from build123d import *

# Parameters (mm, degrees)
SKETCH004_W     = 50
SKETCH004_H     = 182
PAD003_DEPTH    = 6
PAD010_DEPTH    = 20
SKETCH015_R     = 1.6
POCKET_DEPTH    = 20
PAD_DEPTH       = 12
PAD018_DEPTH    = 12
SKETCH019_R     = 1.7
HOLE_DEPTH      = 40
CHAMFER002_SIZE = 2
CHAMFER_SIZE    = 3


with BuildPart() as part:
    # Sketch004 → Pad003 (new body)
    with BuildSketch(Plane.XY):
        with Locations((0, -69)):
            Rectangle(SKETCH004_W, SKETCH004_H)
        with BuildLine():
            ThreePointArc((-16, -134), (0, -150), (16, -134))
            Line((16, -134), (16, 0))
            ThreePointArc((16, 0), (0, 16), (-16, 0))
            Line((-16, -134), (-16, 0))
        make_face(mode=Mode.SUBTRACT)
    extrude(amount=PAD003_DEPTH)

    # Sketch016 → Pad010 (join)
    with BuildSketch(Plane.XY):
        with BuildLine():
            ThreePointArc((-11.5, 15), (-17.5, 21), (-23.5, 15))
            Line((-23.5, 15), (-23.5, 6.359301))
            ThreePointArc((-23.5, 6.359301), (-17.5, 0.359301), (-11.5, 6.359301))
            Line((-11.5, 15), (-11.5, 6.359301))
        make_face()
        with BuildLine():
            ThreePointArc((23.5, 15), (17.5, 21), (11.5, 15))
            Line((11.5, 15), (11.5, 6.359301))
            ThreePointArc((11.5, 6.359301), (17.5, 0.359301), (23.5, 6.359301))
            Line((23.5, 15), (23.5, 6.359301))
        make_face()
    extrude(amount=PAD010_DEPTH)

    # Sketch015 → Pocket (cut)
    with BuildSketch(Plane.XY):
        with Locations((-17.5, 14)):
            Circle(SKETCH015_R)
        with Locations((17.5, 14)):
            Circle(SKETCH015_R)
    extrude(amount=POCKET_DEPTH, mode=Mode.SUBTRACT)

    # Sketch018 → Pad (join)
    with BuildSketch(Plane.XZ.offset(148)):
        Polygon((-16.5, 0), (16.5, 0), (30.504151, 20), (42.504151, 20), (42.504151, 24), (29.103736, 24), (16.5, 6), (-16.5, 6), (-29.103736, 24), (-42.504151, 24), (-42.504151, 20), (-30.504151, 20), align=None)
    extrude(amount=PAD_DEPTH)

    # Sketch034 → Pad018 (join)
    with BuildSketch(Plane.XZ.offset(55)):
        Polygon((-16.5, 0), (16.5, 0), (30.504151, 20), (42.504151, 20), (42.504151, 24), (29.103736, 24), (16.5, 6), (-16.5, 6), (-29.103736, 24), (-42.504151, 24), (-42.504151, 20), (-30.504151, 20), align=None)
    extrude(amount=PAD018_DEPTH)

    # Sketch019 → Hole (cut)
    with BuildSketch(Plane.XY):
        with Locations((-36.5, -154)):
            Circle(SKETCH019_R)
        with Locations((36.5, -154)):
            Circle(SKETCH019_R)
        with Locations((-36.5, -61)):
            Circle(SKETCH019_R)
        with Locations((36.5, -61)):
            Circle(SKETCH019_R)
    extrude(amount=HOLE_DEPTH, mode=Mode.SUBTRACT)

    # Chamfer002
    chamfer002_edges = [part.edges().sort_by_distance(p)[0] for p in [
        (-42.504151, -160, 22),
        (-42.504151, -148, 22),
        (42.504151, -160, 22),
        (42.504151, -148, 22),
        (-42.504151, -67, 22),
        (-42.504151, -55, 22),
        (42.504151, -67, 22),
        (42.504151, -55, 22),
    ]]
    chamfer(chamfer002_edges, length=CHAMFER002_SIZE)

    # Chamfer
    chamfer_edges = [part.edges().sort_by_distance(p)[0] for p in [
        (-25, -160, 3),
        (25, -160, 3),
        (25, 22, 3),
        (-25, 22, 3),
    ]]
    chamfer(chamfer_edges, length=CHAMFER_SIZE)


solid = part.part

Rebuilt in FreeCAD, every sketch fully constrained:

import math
import FreeCAD as App
import Part
import Sketcher
Q = App.Units.Quantity


def edges_at(feature, points):
    """Names of the edges that pass closest to the given points."""
    edges = feature.Shape.Edges
    near = lambda p: min(range(len(edges)), key=lambda i: edges[i].distToShape(Part.Vertex(*p))[0])
    return sorted({f"Edge{near(p) + 1}" for p in points})

doc = App.newDocument("Part")
body = doc.addObject("PartDesign::Body", "Body")

sketch1 = body.newObject("Sketcher::SketchObject", "Sketch")
sketch1.AttachmentSupport = (doc.getObject("XY_Plane"), [""])
sketch1.MapMode = "FlatFace"
sketch1.addGeometry([
    Part.LineSegment(App.Vector(-25, 22, 0), App.Vector(-25, -160, 0)),
    Part.LineSegment(App.Vector(-25, -160, 0), App.Vector(25, -160, 0)),
    Part.LineSegment(App.Vector(25, -160, 0), App.Vector(25, 22, 0)),
    Part.LineSegment(App.Vector(25, 22, 0), App.Vector(-25, 22, 0)),
    Part.ArcOfCircle(Part.Circle(App.Vector(0, -134, 0), App.Vector(0, 0, 1), 16), math.radians(180), math.radians(360)),
    Part.LineSegment(App.Vector(-16, -134, 0), App.Vector(-16, 0, 0)),
    Part.ArcOfCircle(Part.Circle(App.Vector(0, 0, 0), App.Vector(0, 0, 1), 16), math.radians(0), math.radians(180)),
    Part.LineSegment(App.Vector(16, 0, 0), App.Vector(16, -134, 0)),
], False)
sketch1.addConstraint([
    Sketcher.Constraint("Coincident", 0, 2, 1, 1),
    Sketcher.Constraint("Coincident", 1, 2, 2, 1),
    Sketcher.Constraint("Coincident", 2, 2, 3, 1),
    Sketcher.Constraint("Coincident", 3, 2, 0, 1),
    Sketcher.Constraint("Tangent", 4, 1, 5, 1),
    Sketcher.Constraint("Tangent", 5, 2, 6, 2),
    Sketcher.Constraint("Tangent", 6, 1, 7, 1),
    Sketcher.Constraint("Tangent", 7, 2, 4, 2),
    Sketcher.Constraint("Vertical", 0),
    Sketcher.Constraint("Horizontal", 1),
    Sketcher.Constraint("Vertical", 2),
    Sketcher.Constraint("Horizontal", 3),
    Sketcher.Constraint("Vertical", 5),
    Sketcher.Constraint("Vertical", 7),
    Sketcher.Constraint("Coincident", 6, 3, -1, 1),
    Sketcher.Constraint("Radius", 4, Q("16 mm")),
    Sketcher.Constraint("DistanceX", 1, 1, 1, 2, Q("50 mm")),
    Sketcher.Constraint("DistanceY", 0, 2, 0, 1, Q("182 mm")),
    Sketcher.Constraint("DistanceY", 5, 1, 5, 2, Q("134 mm")),
    Sketcher.Constraint("DistanceX", 0, 2, -1, 1, Q("25 mm")),
    Sketcher.Constraint("DistanceY", 0, 2, -1, 1, Q("160 mm")),
])
pad1 = body.newObject("PartDesign::Pad", "Pad")
pad1.Profile = sketch1
pad1.Length = 6

sketch2 = body.newObject("Sketcher::SketchObject", "Sketch001")
sketch2.AttachmentSupport = (doc.getObject("XY_Plane"), [""])
sketch2.MapMode = "FlatFace"
sketch2.addGeometry([
    Part.ArcOfCircle(Part.Circle(App.Vector(-17.5, 15, 0), App.Vector(0, 0, 1), 6), math.radians(0), math.radians(180)),
    Part.LineSegment(App.Vector(-23.5, 15, 0), App.Vector(-23.5, 6.359301, 0)),
    Part.ArcOfCircle(Part.Circle(App.Vector(-17.5, 6.359301, 0), App.Vector(0, 0, 1), 6), math.radians(180), math.radians(360)),
    Part.LineSegment(App.Vector(-11.5, 6.359301, 0), App.Vector(-11.5, 15, 0)),
    Part.ArcOfCircle(Part.Circle(App.Vector(17.5, 15, 0), App.Vector(0, 0, 1), 6), math.radians(0), math.radians(180)),
    Part.LineSegment(App.Vector(11.5, 15, 0), App.Vector(11.5, 6.359301, 0)),
    Part.ArcOfCircle(Part.Circle(App.Vector(17.5, 6.359301, 0), App.Vector(0, 0, 1), 6), math.radians(180), math.radians(360)),
    Part.LineSegment(App.Vector(23.5, 6.359301, 0), App.Vector(23.5, 15, 0)),
], False)
sketch2.addConstraint([
    Sketcher.Constraint("Tangent", 0, 2, 1, 1),
    Sketcher.Constraint("Tangent", 1, 2, 2, 1),
    Sketcher.Constraint("Tangent", 2, 2, 3, 1),
    Sketcher.Constraint("Tangent", 3, 2, 0, 1),
    Sketcher.Constraint("Tangent", 4, 2, 5, 1),
    Sketcher.Constraint("Tangent", 5, 2, 6, 1),
    Sketcher.Constraint("Tangent", 6, 2, 7, 1),
    Sketcher.Constraint("Tangent", 7, 2, 4, 1),
    Sketcher.Constraint("Vertical", 1),
    Sketcher.Constraint("Vertical", 3),
    Sketcher.Constraint("Vertical", 5),
    Sketcher.Constraint("Vertical", 7),
    Sketcher.Constraint("Equal", 2, 4),
    Sketcher.Constraint("Symmetric", 0, 3, 4, 3, -2),
    Sketcher.Constraint("Horizontal", 2, 3, 6, 3),
    Sketcher.Constraint("Radius", 0, Q("6 mm")),
    Sketcher.Constraint("DistanceY", -1, 1, 0, 3, Q("15 mm")),
    Sketcher.Constraint("DistanceX", 0, 3, 4, 3, Q("35 mm")),
    Sketcher.Constraint("DistanceY", 1, 2, 1, 1, Q("8.640699 mm")),
])
pad2 = body.newObject("PartDesign::Pad", "Pad001")
pad2.Profile = sketch2
pad2.Length = 20

sketch3 = body.newObject("Sketcher::SketchObject", "Sketch002")
sketch3.AttachmentSupport = (doc.getObject("XY_Plane"), [""])
sketch3.MapMode = "FlatFace"
sketch3.addGeometry([
    Part.Circle(App.Vector(-17.5, 14, 0), App.Vector(0, 0, 1), 1.6),
    Part.Circle(App.Vector(17.5, 14, 0), App.Vector(0, 0, 1), 1.6),
], False)
sketch3.addConstraint([
    Sketcher.Constraint("Equal", 0, 1),
    Sketcher.Constraint("Symmetric", 0, 3, 1, 3, -2),
    Sketcher.Constraint("Diameter", 0, Q("3.2 mm")),
    Sketcher.Constraint("DistanceY", -1, 1, 0, 3, Q("14 mm")),
    Sketcher.Constraint("DistanceX", 0, 3, 1, 3, Q("35 mm")),
])
pocket1 = body.newObject("PartDesign::Pocket", "Pocket")
pocket1.Profile = sketch3
pocket1.Length = 20
pocket1.Reversed = True

sketch4 = body.newObject("Sketcher::SketchObject", "Sketch003")
sketch4.AttachmentSupport = (doc.getObject("XZ_Plane"), [""])
sketch4.MapMode = "FlatFace"
sketch4.AttachmentOffset = App.Placement(App.Vector(0, 0, 148), App.Rotation())
sketch4.addGeometry([
    Part.LineSegment(App.Vector(-16.5, 0, 0), App.Vector(16.5, 0, 0)),
    Part.LineSegment(App.Vector(16.5, 0, 0), App.Vector(30.504151, 20, 0)),
    Part.LineSegment(App.Vector(30.504151, 20, 0), App.Vector(42.504151, 20, 0)),
    Part.LineSegment(App.Vector(42.504151, 20, 0), App.Vector(42.504151, 24, 0)),
    Part.LineSegment(App.Vector(42.504151, 24, 0), App.Vector(29.103736, 24, 0)),
    Part.LineSegment(App.Vector(29.103736, 24, 0), App.Vector(16.5, 6, 0)),
    Part.LineSegment(App.Vector(16.5, 6, 0), App.Vector(-16.5, 6, 0)),
    Part.LineSegment(App.Vector(-16.5, 6, 0), App.Vector(-29.103736, 24, 0)),
    Part.LineSegment(App.Vector(-29.103736, 24, 0), App.Vector(-42.504151, 24, 0)),
    Part.LineSegment(App.Vector(-42.504151, 24, 0), App.Vector(-42.504151, 20, 0)),
    Part.LineSegment(App.Vector(-42.504151, 20, 0), App.Vector(-30.504151, 20, 0)),
    Part.LineSegment(App.Vector(-30.504151, 20, 0), App.Vector(-16.5, 0, 0)),
], False)
sketch4.addConstraint([
    Sketcher.Constraint("Coincident", 0, 2, 1, 1),
    Sketcher.Constraint("Coincident", 1, 2, 2, 1),
    Sketcher.Constraint("Coincident", 2, 2, 3, 1),
    Sketcher.Constraint("Coincident", 3, 2, 4, 1),
    Sketcher.Constraint("Coincident", 4, 2, 5, 1),
    Sketcher.Constraint("Coincident", 5, 2, 6, 1),
    Sketcher.Constraint("Coincident", 6, 2, 7, 1),
    Sketcher.Constraint("Coincident", 7, 2, 8, 1),
    Sketcher.Constraint("Coincident", 8, 2, 9, 1),
    Sketcher.Constraint("Coincident", 9, 2, 10, 1),
    Sketcher.Constraint("Coincident", 10, 2, 11, 1),
    Sketcher.Constraint("Coincident", 11, 2, 0, 1),
    Sketcher.Constraint("Horizontal", 0),
    Sketcher.Constraint("Horizontal", 2),
    Sketcher.Constraint("Vertical", 3),
    Sketcher.Constraint("Horizontal", 4),
    Sketcher.Constraint("Horizontal", 6),
    Sketcher.Constraint("Horizontal", 8),
    Sketcher.Constraint("Vertical", 9),
    Sketcher.Constraint("Horizontal", 10),
    Sketcher.Constraint("Symmetric", 0, 2, 11, 2, -1, 1),
    Sketcher.Constraint("Symmetric", 4, 2, 7, 2, -2),
    Sketcher.Constraint("Symmetric", 2, 2, 9, 2, -2),
    Sketcher.Constraint("Parallel", 1, 5),
    Sketcher.Constraint("Parallel", 7, 11),
    Sketcher.Constraint("Vertical", 0, 2, 5, 2),
    Sketcher.Constraint("Vertical", 6, 2, 11, 2),
    Sketcher.Constraint("DistanceX", 0, 1, 0, 2, Q("33 mm")),
    Sketcher.Constraint("DistanceX", 2, 1, 2, 2, Q("12 mm")),
    Sketcher.Constraint("DistanceY", 3, 1, 3, 2, Q("4 mm")),
    Sketcher.Constraint("Angle", 1, Q("55 deg")),
    Sketcher.Constraint("DistanceY", -1, 1, 1, 2, Q("20 mm")),
    Sketcher.Constraint("DistanceY", -1, 1, 5, 2, Q("6 mm")),
])
pad3 = body.newObject("PartDesign::Pad", "Pad002")
pad3.Profile = sketch4
pad3.Length = 12

sketch5 = body.newObject("Sketcher::SketchObject", "Sketch004")
sketch5.AttachmentSupport = (doc.getObject("XZ_Plane"), [""])
sketch5.MapMode = "FlatFace"
sketch5.AttachmentOffset = App.Placement(App.Vector(0, 0, 55), App.Rotation())
sketch5.addGeometry([
    Part.LineSegment(App.Vector(-16.5, 0, 0), App.Vector(16.5, 0, 0)),
    Part.LineSegment(App.Vector(16.5, 0, 0), App.Vector(30.504151, 20, 0)),
    Part.LineSegment(App.Vector(30.504151, 20, 0), App.Vector(42.504151, 20, 0)),
    Part.LineSegment(App.Vector(42.504151, 20, 0), App.Vector(42.504151, 24, 0)),
    Part.LineSegment(App.Vector(42.504151, 24, 0), App.Vector(29.103736, 24, 0)),
    Part.LineSegment(App.Vector(29.103736, 24, 0), App.Vector(16.5, 6, 0)),
    Part.LineSegment(App.Vector(16.5, 6, 0), App.Vector(-16.5, 6, 0)),
    Part.LineSegment(App.Vector(-16.5, 6, 0), App.Vector(-29.103736, 24, 0)),
    Part.LineSegment(App.Vector(-29.103736, 24, 0), App.Vector(-42.504151, 24, 0)),
    Part.LineSegment(App.Vector(-42.504151, 24, 0), App.Vector(-42.504151, 20, 0)),
    Part.LineSegment(App.Vector(-42.504151, 20, 0), App.Vector(-30.504151, 20, 0)),
    Part.LineSegment(App.Vector(-30.504151, 20, 0), App.Vector(-16.5, 0, 0)),
], False)
sketch5.addConstraint([
    Sketcher.Constraint("Coincident", 0, 2, 1, 1),
    Sketcher.Constraint("Coincident", 1, 2, 2, 1),
    Sketcher.Constraint("Coincident", 2, 2, 3, 1),
    Sketcher.Constraint("Coincident", 3, 2, 4, 1),
    Sketcher.Constraint("Coincident", 4, 2, 5, 1),
    Sketcher.Constraint("Coincident", 5, 2, 6, 1),
    Sketcher.Constraint("Coincident", 6, 2, 7, 1),
    Sketcher.Constraint("Coincident", 7, 2, 8, 1),
    Sketcher.Constraint("Coincident", 8, 2, 9, 1),
    Sketcher.Constraint("Coincident", 9, 2, 10, 1),
    Sketcher.Constraint("Coincident", 10, 2, 11, 1),
    Sketcher.Constraint("Coincident", 11, 2, 0, 1),
    Sketcher.Constraint("Horizontal", 0),
    Sketcher.Constraint("Horizontal", 2),
    Sketcher.Constraint("Vertical", 3),
    Sketcher.Constraint("Horizontal", 4),
    Sketcher.Constraint("Horizontal", 6),
    Sketcher.Constraint("Horizontal", 8),
    Sketcher.Constraint("Vertical", 9),
    Sketcher.Constraint("Horizontal", 10),
    Sketcher.Constraint("Symmetric", 0, 2, 11, 2, -1, 1),
    Sketcher.Constraint("Symmetric", 4, 2, 7, 2, -2),
    Sketcher.Constraint("Symmetric", 2, 2, 9, 2, -2),
    Sketcher.Constraint("Parallel", 1, 5),
    Sketcher.Constraint("Parallel", 7, 11),
    Sketcher.Constraint("Vertical", 0, 2, 5, 2),
    Sketcher.Constraint("Vertical", 6, 2, 11, 2),
    Sketcher.Constraint("DistanceX", 0, 1, 0, 2, Q("33 mm")),
    Sketcher.Constraint("DistanceX", 2, 1, 2, 2, Q("12 mm")),
    Sketcher.Constraint("DistanceY", 3, 1, 3, 2, Q("4 mm")),
    Sketcher.Constraint("Angle", 1, Q("55 deg")),
    Sketcher.Constraint("DistanceY", -1, 1, 1, 2, Q("20 mm")),
    Sketcher.Constraint("DistanceY", -1, 1, 5, 2, Q("6 mm")),
])
pad4 = body.newObject("PartDesign::Pad", "Pad003")
pad4.Profile = sketch5
pad4.Length = 12

sketch6 = body.newObject("Sketcher::SketchObject", "Sketch005")
sketch6.AttachmentSupport = (doc.getObject("XY_Plane"), [""])
sketch6.MapMode = "FlatFace"
sketch6.addGeometry([
    Part.Circle(App.Vector(-36.5, -154, 0), App.Vector(0, 0, 1), 1.7),
    Part.Circle(App.Vector(36.5, -154, 0), App.Vector(0, 0, 1), 1.7),
    Part.Circle(App.Vector(-36.5, -61, 0), App.Vector(0, 0, 1), 1.7),
    Part.Circle(App.Vector(36.5, -61, 0), App.Vector(0, 0, 1), 1.7),
], False)
sketch6.addConstraint([
    Sketcher.Constraint("Equal", 0, 1),
    Sketcher.Constraint("Equal", 1, 2),
    Sketcher.Constraint("Equal", 2, 3),
    Sketcher.Constraint("Symmetric", 0, 3, 1, 3, -2),
    Sketcher.Constraint("Symmetric", 2, 3, 3, 3, -2),
    Sketcher.Constraint("Vertical", 0, 3, 2, 3),
    Sketcher.Constraint("Diameter", 0, Q("3.4 mm")),
    Sketcher.Constraint("DistanceY", 0, 3, -1, 1, Q("154 mm")),
    Sketcher.Constraint("DistanceY", 2, 3, -1, 1, Q("61 mm")),
    Sketcher.Constraint("DistanceX", 0, 3, 1, 3, Q("73 mm")),
])
pocket2 = body.newObject("PartDesign::Pocket", "Pocket001")
pocket2.Profile = sketch6
pocket2.Length = 40
pocket2.Reversed = True
doc.recompute()

chamfer = body.newObject("PartDesign::Chamfer", "Chamfer")
chamfer.Base = (pocket2, edges_at(pocket2, [
    (-42.504, -160, 22),
    (-42.504, -148, 22),
    (42.504, -160, 22),
    (42.504, -148, 22),
    (-42.504, -67, 22),
    (-42.504, -55, 22),
    (42.504, -67, 22),
    (42.504, -55, 22),
]))
chamfer.Size = 2
doc.recompute()

chamfer2 = body.newObject("PartDesign::Chamfer", "Chamfer001")
chamfer2.Base = (chamfer, edges_at(chamfer, [
    (-25, -160, 3),
    (25, -160, 3),
    (25, 22, 3),
    (-25, 22, 3),
]))
chamfer2.Size = 3

doc.recompute()
